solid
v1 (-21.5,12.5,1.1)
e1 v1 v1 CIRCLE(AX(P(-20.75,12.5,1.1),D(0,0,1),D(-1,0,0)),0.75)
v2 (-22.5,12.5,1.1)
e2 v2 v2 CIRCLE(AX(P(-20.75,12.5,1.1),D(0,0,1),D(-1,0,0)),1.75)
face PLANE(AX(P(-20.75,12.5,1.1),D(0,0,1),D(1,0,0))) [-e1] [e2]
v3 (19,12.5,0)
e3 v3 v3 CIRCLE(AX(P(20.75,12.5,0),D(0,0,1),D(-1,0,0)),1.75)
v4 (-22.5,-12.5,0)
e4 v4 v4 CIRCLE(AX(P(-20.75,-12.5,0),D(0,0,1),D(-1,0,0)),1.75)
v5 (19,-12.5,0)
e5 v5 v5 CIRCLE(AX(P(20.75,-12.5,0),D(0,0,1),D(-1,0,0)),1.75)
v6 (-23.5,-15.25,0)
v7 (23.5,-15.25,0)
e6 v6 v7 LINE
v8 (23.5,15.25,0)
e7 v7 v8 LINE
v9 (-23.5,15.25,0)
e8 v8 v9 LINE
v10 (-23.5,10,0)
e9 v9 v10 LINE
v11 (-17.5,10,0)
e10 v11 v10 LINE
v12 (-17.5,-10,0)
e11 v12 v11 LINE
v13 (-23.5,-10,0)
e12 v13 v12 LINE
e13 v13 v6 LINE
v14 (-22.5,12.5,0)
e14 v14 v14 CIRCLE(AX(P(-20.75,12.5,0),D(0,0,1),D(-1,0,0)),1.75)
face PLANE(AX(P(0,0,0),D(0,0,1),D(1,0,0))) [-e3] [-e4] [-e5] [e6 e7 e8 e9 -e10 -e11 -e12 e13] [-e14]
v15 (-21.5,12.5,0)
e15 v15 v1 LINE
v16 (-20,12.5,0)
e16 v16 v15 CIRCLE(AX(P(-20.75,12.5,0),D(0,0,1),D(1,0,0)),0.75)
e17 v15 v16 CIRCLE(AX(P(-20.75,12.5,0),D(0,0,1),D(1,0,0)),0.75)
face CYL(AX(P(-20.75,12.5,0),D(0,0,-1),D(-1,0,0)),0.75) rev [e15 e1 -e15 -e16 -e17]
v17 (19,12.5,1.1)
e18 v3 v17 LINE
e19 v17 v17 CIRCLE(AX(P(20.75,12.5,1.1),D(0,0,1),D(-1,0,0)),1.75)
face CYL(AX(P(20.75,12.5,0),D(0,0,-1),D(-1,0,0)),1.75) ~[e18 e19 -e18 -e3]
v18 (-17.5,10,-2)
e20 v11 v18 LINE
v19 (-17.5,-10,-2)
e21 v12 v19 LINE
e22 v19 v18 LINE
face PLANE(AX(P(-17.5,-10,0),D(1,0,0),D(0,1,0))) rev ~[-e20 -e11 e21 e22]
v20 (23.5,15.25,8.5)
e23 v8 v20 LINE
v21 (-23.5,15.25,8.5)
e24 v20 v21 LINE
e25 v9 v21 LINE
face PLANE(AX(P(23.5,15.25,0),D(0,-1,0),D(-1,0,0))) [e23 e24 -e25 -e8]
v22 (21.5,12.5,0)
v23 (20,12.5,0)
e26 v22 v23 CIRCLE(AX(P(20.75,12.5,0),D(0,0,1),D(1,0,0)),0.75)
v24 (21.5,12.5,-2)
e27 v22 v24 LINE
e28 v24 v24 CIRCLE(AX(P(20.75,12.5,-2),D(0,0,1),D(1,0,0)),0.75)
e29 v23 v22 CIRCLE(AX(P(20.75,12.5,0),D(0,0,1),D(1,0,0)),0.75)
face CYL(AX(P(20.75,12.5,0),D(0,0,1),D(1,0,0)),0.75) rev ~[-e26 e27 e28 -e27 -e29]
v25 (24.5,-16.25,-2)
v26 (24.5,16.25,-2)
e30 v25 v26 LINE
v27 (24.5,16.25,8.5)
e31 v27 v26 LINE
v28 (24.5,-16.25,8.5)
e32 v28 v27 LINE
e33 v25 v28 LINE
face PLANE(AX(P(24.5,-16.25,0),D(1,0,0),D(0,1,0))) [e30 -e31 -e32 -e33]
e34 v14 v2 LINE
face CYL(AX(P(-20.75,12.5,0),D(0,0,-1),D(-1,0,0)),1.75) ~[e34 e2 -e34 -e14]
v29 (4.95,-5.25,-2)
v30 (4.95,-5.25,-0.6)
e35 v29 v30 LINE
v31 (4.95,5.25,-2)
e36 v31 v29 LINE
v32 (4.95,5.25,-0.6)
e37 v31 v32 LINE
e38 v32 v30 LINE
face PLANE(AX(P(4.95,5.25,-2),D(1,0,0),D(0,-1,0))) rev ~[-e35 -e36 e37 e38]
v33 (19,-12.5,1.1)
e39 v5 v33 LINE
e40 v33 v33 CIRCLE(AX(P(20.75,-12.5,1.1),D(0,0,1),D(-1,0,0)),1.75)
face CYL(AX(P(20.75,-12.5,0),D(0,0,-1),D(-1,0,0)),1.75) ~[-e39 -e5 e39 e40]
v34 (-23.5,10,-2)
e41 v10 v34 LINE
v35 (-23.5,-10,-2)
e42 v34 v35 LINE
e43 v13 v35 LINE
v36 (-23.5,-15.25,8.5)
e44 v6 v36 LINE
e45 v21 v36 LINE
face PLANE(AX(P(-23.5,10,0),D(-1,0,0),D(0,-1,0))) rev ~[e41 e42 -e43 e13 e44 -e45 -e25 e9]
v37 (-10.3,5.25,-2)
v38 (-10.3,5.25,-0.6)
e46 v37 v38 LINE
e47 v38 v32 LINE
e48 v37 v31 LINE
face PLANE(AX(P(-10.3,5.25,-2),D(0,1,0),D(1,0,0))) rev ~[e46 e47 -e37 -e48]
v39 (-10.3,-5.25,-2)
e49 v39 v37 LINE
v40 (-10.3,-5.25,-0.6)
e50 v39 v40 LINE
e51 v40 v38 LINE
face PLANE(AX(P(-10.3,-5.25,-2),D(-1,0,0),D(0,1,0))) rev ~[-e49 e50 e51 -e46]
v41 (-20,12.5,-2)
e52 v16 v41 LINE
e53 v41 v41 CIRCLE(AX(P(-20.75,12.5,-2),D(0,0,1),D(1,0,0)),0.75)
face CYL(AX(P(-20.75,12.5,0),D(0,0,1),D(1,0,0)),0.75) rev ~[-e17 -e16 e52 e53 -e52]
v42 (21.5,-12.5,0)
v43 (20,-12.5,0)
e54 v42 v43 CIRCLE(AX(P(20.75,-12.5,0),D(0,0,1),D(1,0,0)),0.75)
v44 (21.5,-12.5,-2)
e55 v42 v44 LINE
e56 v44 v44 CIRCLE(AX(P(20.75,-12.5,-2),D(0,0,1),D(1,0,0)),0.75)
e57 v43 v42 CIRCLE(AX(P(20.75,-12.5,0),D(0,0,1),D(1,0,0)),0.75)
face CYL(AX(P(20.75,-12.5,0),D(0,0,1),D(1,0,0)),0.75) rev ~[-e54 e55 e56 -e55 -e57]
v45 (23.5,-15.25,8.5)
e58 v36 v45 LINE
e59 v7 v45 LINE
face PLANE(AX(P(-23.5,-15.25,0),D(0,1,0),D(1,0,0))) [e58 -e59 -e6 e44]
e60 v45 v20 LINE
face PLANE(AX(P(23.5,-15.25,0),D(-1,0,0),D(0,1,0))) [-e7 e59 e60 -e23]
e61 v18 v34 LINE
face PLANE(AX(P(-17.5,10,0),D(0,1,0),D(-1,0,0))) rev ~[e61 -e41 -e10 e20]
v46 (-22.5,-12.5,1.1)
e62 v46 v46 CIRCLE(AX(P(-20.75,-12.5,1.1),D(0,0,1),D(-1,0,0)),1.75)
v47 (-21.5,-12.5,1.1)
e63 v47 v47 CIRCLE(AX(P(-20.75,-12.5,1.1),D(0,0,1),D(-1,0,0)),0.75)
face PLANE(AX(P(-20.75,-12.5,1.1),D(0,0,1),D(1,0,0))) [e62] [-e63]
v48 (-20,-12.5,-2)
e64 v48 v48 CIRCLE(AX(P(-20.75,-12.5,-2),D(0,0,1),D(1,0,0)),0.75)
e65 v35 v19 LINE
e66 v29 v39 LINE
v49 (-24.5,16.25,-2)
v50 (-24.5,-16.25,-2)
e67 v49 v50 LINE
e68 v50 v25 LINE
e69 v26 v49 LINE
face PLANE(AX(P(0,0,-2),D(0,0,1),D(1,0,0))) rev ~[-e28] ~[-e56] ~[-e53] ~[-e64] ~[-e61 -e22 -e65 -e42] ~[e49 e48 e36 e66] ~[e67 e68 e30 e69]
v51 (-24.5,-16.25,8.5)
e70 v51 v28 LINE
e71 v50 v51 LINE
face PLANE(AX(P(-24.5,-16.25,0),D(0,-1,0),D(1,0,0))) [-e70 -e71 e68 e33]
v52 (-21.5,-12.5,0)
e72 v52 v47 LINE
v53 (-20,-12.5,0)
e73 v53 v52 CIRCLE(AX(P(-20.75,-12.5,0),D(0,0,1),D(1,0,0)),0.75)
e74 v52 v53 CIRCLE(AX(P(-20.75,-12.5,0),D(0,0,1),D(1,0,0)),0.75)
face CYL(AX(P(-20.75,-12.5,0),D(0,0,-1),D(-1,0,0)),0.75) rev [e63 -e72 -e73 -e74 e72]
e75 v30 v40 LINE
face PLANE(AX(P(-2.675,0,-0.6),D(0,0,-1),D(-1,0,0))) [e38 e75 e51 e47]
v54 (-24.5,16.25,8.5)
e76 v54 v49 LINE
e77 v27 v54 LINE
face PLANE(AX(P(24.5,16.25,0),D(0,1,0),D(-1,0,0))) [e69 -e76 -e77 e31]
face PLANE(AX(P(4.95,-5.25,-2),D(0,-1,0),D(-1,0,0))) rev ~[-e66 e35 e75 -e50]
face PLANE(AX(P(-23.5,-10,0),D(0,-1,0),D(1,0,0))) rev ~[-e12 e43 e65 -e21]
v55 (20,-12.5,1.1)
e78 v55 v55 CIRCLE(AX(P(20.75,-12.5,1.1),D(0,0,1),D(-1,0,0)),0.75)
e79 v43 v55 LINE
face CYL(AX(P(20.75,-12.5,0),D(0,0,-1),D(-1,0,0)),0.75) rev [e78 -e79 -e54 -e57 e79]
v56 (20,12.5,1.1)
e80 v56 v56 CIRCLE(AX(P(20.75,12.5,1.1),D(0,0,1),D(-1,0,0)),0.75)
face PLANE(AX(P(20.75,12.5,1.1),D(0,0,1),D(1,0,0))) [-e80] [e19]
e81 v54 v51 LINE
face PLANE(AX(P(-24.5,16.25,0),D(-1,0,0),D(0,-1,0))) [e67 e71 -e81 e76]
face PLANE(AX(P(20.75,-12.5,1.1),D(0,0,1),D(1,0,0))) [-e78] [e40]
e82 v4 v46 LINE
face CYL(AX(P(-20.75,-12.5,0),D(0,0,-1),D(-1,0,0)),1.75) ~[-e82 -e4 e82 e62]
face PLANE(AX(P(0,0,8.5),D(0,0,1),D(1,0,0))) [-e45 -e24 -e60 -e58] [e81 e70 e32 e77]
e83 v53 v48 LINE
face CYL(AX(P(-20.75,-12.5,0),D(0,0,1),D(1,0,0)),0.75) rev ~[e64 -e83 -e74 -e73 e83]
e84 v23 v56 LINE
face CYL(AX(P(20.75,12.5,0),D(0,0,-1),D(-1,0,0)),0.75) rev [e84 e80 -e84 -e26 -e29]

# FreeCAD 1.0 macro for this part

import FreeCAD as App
import Part
import Sketcher
from FreeCAD import Vector
Q = App.Units.Quantity


def add_polygon(sketch, points):
    """Adds a closed chain of lines whose ends are joined by coincident constraints."""
    first, n = sketch.GeometryCount, len(points)
    for a, b in zip(points, points[1:] + points[:1]):
        sketch.addGeometry(Part.LineSegment(App.Vector(*a, 0), App.Vector(*b, 0)), False)
    for i in range(n):
        sketch.addConstraint(Sketcher.Constraint("Coincident", first + i, 2, first + (i + 1) % n, 1))

doc = App.newDocument("Part")
params = doc.addObject("Spreadsheet::Sheet", "Params")
for row, (alias, value) in enumerate([
    ("sketch1_width", "49 mm"),
    ("sketch1_height", "32.5 mm"),
    ("pad1_length", "2 mm"),
    ("sketch2_width", "49 mm"),
    ("sketch2_width2", "47 mm"),
    ("sketch2_height", "32.5 mm"),
    ("sketch2_height2", "30.5 mm"),
    ("pad2_length", "8.5 mm"),
    ("sketch3_width", "6 mm"),
    ("sketch3_height", "20 mm"),
    ("pocket1_length", "2 mm"),
    ("sketch4_diameter", "1.5 mm"),
    ("pocket2_length", "2 mm"),
    ("sketch5_height", "10 mm"),
    ("sketch5_width", "14.75 mm"),
    ("pocket3_length", "1 mm"),
    ("sketch6_height", "10 mm"),
    ("sketch6_width", "14.75 mm"),
    ("pad3_length", "1 mm"),
    ("sketch7_height", "10 mm"),
    ("sketch7_width", "14.75 mm"),
    ("pocket4_length", "1 mm"),
    ("sketch8_height", "10.5 mm"),
    ("sketch8_width", "15.25 mm"),
    ("pocket5_length", "1.4 mm"),
    ("sketch9_diameter", "3.5 mm"),
    ("sketch9_diameter2", "1.5 mm"),
    ("pad4_length", "1.1 mm"),
], start=1):
    params.set(f"A{row}", alias)
    params.set(f"B{row}", "=" + value)
    params.setAlias(f"B{row}", alias)

body = doc.addObject("PartDesign::Body", "Body")

# Sketch on XY plane
sketch1 = body.newObject("Sketcher::SketchObject", "Sketch")
sketch1.AttachmentSupport = (doc.getObject("XY_Plane"), [""])
sketch1.MapMode = "FlatFace"
add_polygon(sketch1, [(24, 16), (-24, 16), (-24, -16), (24, -16)])  # lines 0-3
sketch1.addConstraint(Sketcher.Constraint("Horizontal", 0))
sketch1.addConstraint(Sketcher.Constraint("Vertical", 1))
sketch1.addConstraint(Sketcher.Constraint("Horizontal", 2))
sketch1.addConstraint(Sketcher.Constraint("Vertical", 3))
sketch1.addConstraint(Sketcher.Constraint("Symmetric", 0, 2, 2, 2, -1, 1))
sketch1.addConstraint(Sketcher.Constraint("DistanceX", 0, 2, 0, 1, Q("49 mm")))
sketch1.addConstraint(Sketcher.Constraint("DistanceY", 1, 2, 1, 1, Q("32.5 mm")))
sketch1.setExpression("Constraints[9]", "Params.sketch1_width")
sketch1.setExpression("Constraints[10]", "Params.sketch1_height")
pad1 = body.newObject("PartDesign::Pad", "Pad")
pad1.Profile = sketch1
pad1.setExpression("Length", "Params.pad1_length")
pad1.Reversed = True

# Sketch on XY plane
sketch2 = body.newObject("Sketcher::SketchObject", "Sketch001")
sketch2.AttachmentSupport = (doc.getObject("XY_Plane"), [""])
sketch2.MapMode = "FlatFace"
add_polygon(sketch2, [(24, 16), (-24, 16), (-24, -16), (24, -16)])  # lines 0-3
add_polygon(sketch2, [(-24, -15), (-24, 15), (24, 15), (24, -15)])  # lines 4-7
sketch2.addConstraint(Sketcher.Constraint("Horizontal", 0))
sketch2.addConstraint(Sketcher.Constraint("Vertical", 1))
sketch2.addConstraint(Sketcher.Constraint("Horizontal", 2))
sketch2.addConstraint(Sketcher.Constraint("Vertical", 3))
sketch2.addConstraint(Sketcher.Constraint("Vertical", 4))
sketch2.addConstraint(Sketcher.Constraint("Horizontal", 5))
sketch2.addConstraint(Sketcher.Constraint("Vertical", 6))
sketch2.addConstraint(Sketcher.Constraint("Horizontal", 7))
sketch2.addConstraint(Sketcher.Constraint("Symmetric", 0, 2, 2, 2, -1, 1))
sketch2.addConstraint(Sketcher.Constraint("Symmetric", 4, 2, 6, 2, -1, 1))
sketch2.addConstraint(Sketcher.Constraint("DistanceX", 0, 2, 0, 1, Q("49 mm")))
sketch2.addConstraint(Sketcher.Constraint("DistanceX", 5, 1, 5, 2, Q("47 mm")))
sketch2.addConstraint(Sketcher.Constraint("DistanceY", 1, 2, 1, 1, Q("32.5 mm")))
sketch2.addConstraint(Sketcher.Constraint("DistanceY", 4, 1, 4, 2, Q("30.5 mm")))
sketch2.setExpression("Constraints[18]", "Params.sketch2_width")
sketch2.setExpression("Constraints[19]", "Params.sketch2_width2")
sketch2.setExpression("Constraints[20]", "Params.sketch2_height")
sketch2.setExpression("Constraints[21]", "Params.sketch2_height2")
pad2 = body.newObject("PartDesign::Pad", "Pad001")
pad2.Profile = sketch2
pad2.setExpression("Length", "Params.pad2_length")

# Sketch on XY plane
sketch3 = body.newObject("Sketcher::SketchObject", "Sketch002")
sketch3.AttachmentSupport = (doc.getObject("XY_Plane"), [""])
sketch3.MapMode = "FlatFace"
add_polygon(sketch3, [(-24, -10), (-18, -10), (-18, 10), (-24, 10)])  # lines 0-3
sketch3.addConstraint(Sketcher.Constraint("Horizontal", 0))
sketch3.addConstraint(Sketcher.Constraint("Vertical", 1))
sketch3.addConstraint(Sketcher.Constraint("Horizontal", 2))
sketch3.addConstraint(Sketcher.Constraint("Vertical", 3))
sketch3.addConstraint(Sketcher.Constraint("DistanceX", 0, 1, 0, 2, Q("6 mm")))
sketch3.addConstraint(Sketcher.Constraint("DistanceY", 1, 1, 1, 2, Q("20 mm")))
sketch3.addConstraint(Sketcher.Constraint("DistanceY", 0, 2, -1, 1, Q("10 mm")))
sketch3.addConstraint(Sketcher.Constraint("DistanceX", 0, 2, -1, 1, Q("17.5 mm")))
sketch3.setExpression("Constraints[8]", "Params.sketch3_width")
sketch3.setExpression("Constraints[9]", "Params.sketch3_height")
pocket1 = body.newObject("PartDesign::Pocket", "Pocket")
pocket1.Profile = sketch3
pocket1.setExpression("Length", "Params.pocket1_length")

# Sketch on XY plane
sketch4 = body.newObject("Sketcher::SketchObject", "Sketch003")
sketch4.AttachmentSupport = (doc.getObject("XY_Plane"), [""])
sketch4.MapMode = "FlatFace"
sketch4.addGeometry(Part.Circle(Vector(-20.8, 12.5, 0), Vector(0, 0, 1), 0.8), False)
sketch4.addGeometry(Part.Circle(Vector(-20.8, -12.5, 0), Vector(0, 0, 1), 0.8), False)
sketch4.addGeometry(Part.Circle(Vector(20.8, -12.5, 0), Vector(0, 0, 1), 0.8), False)
sketch4.addGeometry(Part.Circle(Vector(20.8, 12.5, 0), Vector(0, 0, 1), 0.8), False)
sketch4.addConstraint(Sketcher.Constraint("Equal", 0, 1))
sketch4.addConstraint(Sketcher.Constraint("Equal", 1, 2))
sketch4.addConstraint(Sketcher.Constraint("Equal", 2, 3))
sketch4.addConstraint(Sketcher.Constraint("Symmetric", 0, 3, 2, 3, -1, 1))
sketch4.addConstraint(Sketcher.Constraint("Symmetric", 1, 3, 3, 3, -1, 1))
sketch4.addConstraint(Sketcher.Constraint("Symmetric", 1, 3, 2, 3, -2))
sketch4.addConstraint(Sketcher.Constraint("Diameter", 0, Q("1.5 mm")))
sketch4.addConstraint(Sketcher.Constraint("DistanceY", 1, 3, 0, 3, Q("25 mm")))
sketch4.addConstraint(Sketcher.Constraint("DistanceX", 1, 3, 2, 3, Q("41.5 mm")))
sketch4.setExpression("Constraints[6]", "Params.sketch4_diameter")
pocket2 = body.newObject("PartDesign::Pocket", "Pocket001")
pocket2.Profile = sketch4
pocket2.setExpression("Length", "Params.pocket2_length")

# Sketch on XY plane
sketch5 = body.newObject("Sketcher::SketchObject", "Sketch004")
sketch5.AttachmentSupport = (doc.getObject("XY_Plane"), [""])
sketch5.MapMode = "FlatFace"
sketch5.AttachmentOffset = App.Placement(Vector(0, 0, -2), App.Rotation())
add_polygon(sketch5, [(5, -6), (-10, -6), (-10, 4), (5, 4)])  # lines 0-3
sketch5.addConstraint(Sketcher.Constraint("Horizontal", 0))
sketch5.addConstraint(Sketcher.Constraint("Vertical", 1))
sketch5.addConstraint(Sketcher.Constraint("Horizontal", 2))
sketch5.addConstraint(Sketcher.Constraint("Vertical", 3))
sketch5.addConstraint(Sketcher.Constraint("DistanceY", 1, 1, 1, 2, Q("10 mm")))
sketch5.addConstraint(Sketcher.Constraint("DistanceX", 0, 2, 0, 1, Q("14.75 mm")))
sketch5.addConstraint(Sketcher.Constraint("DistanceY", 0, 2, -1, 1, Q("5.5 mm")))
sketch5.addConstraint(Sketcher.Constraint("DistanceX", -1, 1, 2, 2, Q("4.7 mm")))
sketch5.setExpression("Constraints[8]", "Params.sketch5_height")
sketch5.setExpression("Constraints[9]", "Params.sketch5_width")
pocket3 = body.newObject("PartDesign::Pocket", "Pocket002")
pocket3.Profile = sketch5
pocket3.setExpression("Length", "Params.pocket3_length")
pocket3.Reversed = True

# Sketch on XY plane
sketch6 = body.newObject("Sketcher::SketchObject", "Sketch005")
sketch6.AttachmentSupport = (doc.getObject("XY_Plane"), [""])
sketch6.MapMode = "FlatFace"
sketch6.AttachmentOffset = App.Placement(Vector(0, 0, -2), App.Rotation())
add_polygon(sketch6, [(5, 4), (5, -6), (-10, -6), (-10, 4)])  # lines 0-3
sketch6.addConstraint(Sketcher.Constraint("Vertical", 0))
sketch6.addConstraint(Sketcher.Constraint("Horizontal", 1))
sketch6.addConstraint(Sketcher.Constraint("Vertical", 2))
sketch6.addConstraint(Sketcher.Constraint("Horizontal", 3))
sketch6.addConstraint(Sketcher.Constraint("DistanceY", 0, 2, 0, 1, Q("10 mm")))
sketch6.addConstraint(Sketcher.Constraint("DistanceX", 1, 2, 1, 1, Q("14.75 mm")))
sketch6.addConstraint(Sketcher.Constraint("DistanceX", -1, 1, 0, 2, Q("4.7 mm")))
sketch6.addConstraint(Sketcher.Constraint("DistanceY", 0, 2, -1, 1, Q("5.5 mm")))
sketch6.setExpression("Constraints[8]", "Params.sketch6_height")
sketch6.setExpression("Constraints[9]", "Params.sketch6_width")
pad3 = body.newObject("PartDesign::Pad", "Pad002")
pad3.Profile = sketch6
pad3.setExpression("Length", "Params.pad3_length")

# Sketch on XY plane
sketch7 = body.newObject("Sketcher::SketchObject", "Sketch006")
sketch7.AttachmentSupport = (doc.getObject("XY_Plane"), [""])
sketch7.MapMode = "FlatFace"
sketch7.AttachmentOffset = App.Placement(Vector(0, 0, -2), App.Rotation())
add_polygon(sketch7, [(-10, -5), (-10, 5), (5, 5), (5, -5)])  # lines 0-3
sketch7.addConstraint(Sketcher.Constraint("Vertical", 0))
sketch7.addConstraint(Sketcher.Constraint("Horizontal", 1))
sketch7.addConstraint(Sketcher.Constraint("Vertical", 2))
sketch7.addConstraint(Sketcher.Constraint("Horizontal", 3))
sketch7.addConstraint(Sketcher.Constraint("DistanceY", 0, 1, 0, 2, Q("10 mm")))
sketch7.addConstraint(Sketcher.Constraint("DistanceY", -1, 1, 0, 2, Q("5 mm")))
sketch7.addConstraint(Sketcher.Constraint("DistanceX", 1, 1, 1, 2, Q("14.75 mm")))
sketch7.addConstraint(Sketcher.Constraint("DistanceX", -1, 1, 1, 2, Q("4.7 mm")))
sketch7.setExpression("Constraints[8]", "Params.sketch7_height")
sketch7.setExpression("Constraints[10]", "Params.sketch7_width")
pocket4 = body.newObject("PartDesign::Pocket", "Pocket003")
pocket4.Profile = sketch7
pocket4.setExpression("Length", "Params.pocket4_length")
pocket4.Reversed = True

# Sketch on XY plane
sketch8 = body.newObject("Sketcher::SketchObject", "Sketch007")
sketch8.AttachmentSupport = (doc.getObject("XY_Plane"), [""])
sketch8.MapMode = "FlatFace"
sketch8.AttachmentOffset = App.Placement(Vector(0, 0, -2), App.Rotation())
add_polygon(sketch8, [(5, 5), (5, -5), (-10, -5), (-10, 5)])  # lines 0-3
sketch8.addConstraint(Sketcher.Constraint("Vertical", 0))
sketch8.addConstraint(Sketcher.Constraint("Horizontal", 1))
sketch8.addConstraint(Sketcher.Constraint("Vertical", 2))
sketch8.addConstraint(Sketcher.Constraint("Horizontal", 3))
sketch8.addConstraint(Sketcher.Constraint("DistanceY", 0, 2, 0, 1, Q("10.5 mm")))
sketch8.addConstraint(Sketcher.Constraint("DistanceX", 1, 2, 1, 1, Q("15.25 mm")))
sketch8.addConstraint(Sketcher.Constraint("DistanceX", 1, 2, -1, 1, Q("10.3 mm")))
sketch8.addConstraint(Sketcher.Constraint("DistanceY", 0, 2, -1, 1, Q("5.25 mm")))
sketch8.setExpression("Constraints[8]", "Params.sketch8_height")
sketch8.setExpression("Constraints[9]", "Params.sketch8_width")
pocket5 = body.newObject("PartDesign::Pocket", "Pocket004")
pocket5.Profile = sketch8
pocket5.setExpression("Length", "Params.pocket5_length")
pocket5.Reversed = True

# Sketch on XY plane
sketch9 = body.newObject("Sketcher::SketchObject", "Sketch008")
sketch9.AttachmentSupport = (doc.getObject("XY_Plane"), [""])
sketch9.MapMode = "FlatFace"
sketch9.addGeometry(Part.Circle(Vector(-20.8, -12.5, 0), Vector(0, 0, 1), 1.8), False)
sketch9.addGeometry(Part.Circle(Vector(-20.8, -12.5, 0), Vector(0, 0, 1), 0.8), False)
sketch9.addGeometry(Part.Circle(Vector(-20.8, 12.5, 0), Vector(0, 0, 1), 1.8), False)
sketch9.addGeometry(Part.Circle(Vector(-20.8, 12.5, 0), Vector(0, 0, 1), 0.8), False)
sketch9.addGeometry(Part.Circle(Vector(20.8, 12.5, 0), Vector(0, 0, 1), 1.8), False)
sketch9.addGeometry(Part.Circle(Vector(20.8, 12.5, 0), Vector(0, 0, 1), 0.8), False)
sketch9.addGeometry(Part.Circle(Vector(20.8, -12.5, 0), Vector(0, 0, 1), 1.8), False)
sketch9.addGeometry(Part.Circle(Vector(20.8, -12.5, 0), Vector(0, 0, 1), 0.8), False)
sketch9.addConstraint(Sketcher.Constraint("Coincident", 1, 3, 0, 3))
sketch9.addConstraint(Sketcher.Constraint("Coincident", 3, 3, 2, 3))
sketch9.addConstraint(Sketcher.Constraint("Coincident", 5, 3, 4, 3))
sketch9.addConstraint(Sketcher.Constraint("Coincident", 7, 3, 6, 3))
sketch9.addConstraint(Sketcher.Constraint("Equal", 0, 2))
sketch9.addConstraint(Sketcher.Constraint("Equal", 1, 3))
sketch9.addConstraint(Sketcher.Constraint("Equal", 2, 4))
sketch9.addConstraint(Sketcher.Constraint("Equal", 3, 5))
sketch9.addConstraint(Sketcher.Constraint("Equal", 4, 6))
sketch9.addConstraint(Sketcher.Constraint("Equal", 5, 7))
sketch9.addConstraint(Sketcher.Constraint("Symmetric", 0, 3, 4, 3, -1, 1))
sketch9.addConstraint(Sketcher.Constraint("Symmetric", 2, 3, 6, 3, -1, 1))
sketch9.addConstraint(Sketcher.Constraint("Symmetric", 2, 3, 4, 3, -2))
sketch9.addConstraint(Sketcher.Constraint("Diameter", 0, Q("3.5 mm")))
sketch9.addConstraint(Sketcher.Constraint("Diameter", 1, Q("1.5 mm")))
sketch9.addConstraint(Sketcher.Constraint("DistanceY", 0, 3, 2, 3, Q("25 mm")))
sketch9.addConstraint(Sketcher.Constraint("DistanceX", 2, 3, 4, 3, Q("41.5 mm")))
sketch9.setExpression("Constraints[13]", "Params.sketch9_diameter")
sketch9.setExpression("Constraints[14]", "Params.sketch9_diameter2")
pad4 = body.newObject("PartDesign::Pad", "Pad003")
pad4.Profile = sketch9
pad4.setExpression("Length", "Params.pad4_length")

doc.recompute()
